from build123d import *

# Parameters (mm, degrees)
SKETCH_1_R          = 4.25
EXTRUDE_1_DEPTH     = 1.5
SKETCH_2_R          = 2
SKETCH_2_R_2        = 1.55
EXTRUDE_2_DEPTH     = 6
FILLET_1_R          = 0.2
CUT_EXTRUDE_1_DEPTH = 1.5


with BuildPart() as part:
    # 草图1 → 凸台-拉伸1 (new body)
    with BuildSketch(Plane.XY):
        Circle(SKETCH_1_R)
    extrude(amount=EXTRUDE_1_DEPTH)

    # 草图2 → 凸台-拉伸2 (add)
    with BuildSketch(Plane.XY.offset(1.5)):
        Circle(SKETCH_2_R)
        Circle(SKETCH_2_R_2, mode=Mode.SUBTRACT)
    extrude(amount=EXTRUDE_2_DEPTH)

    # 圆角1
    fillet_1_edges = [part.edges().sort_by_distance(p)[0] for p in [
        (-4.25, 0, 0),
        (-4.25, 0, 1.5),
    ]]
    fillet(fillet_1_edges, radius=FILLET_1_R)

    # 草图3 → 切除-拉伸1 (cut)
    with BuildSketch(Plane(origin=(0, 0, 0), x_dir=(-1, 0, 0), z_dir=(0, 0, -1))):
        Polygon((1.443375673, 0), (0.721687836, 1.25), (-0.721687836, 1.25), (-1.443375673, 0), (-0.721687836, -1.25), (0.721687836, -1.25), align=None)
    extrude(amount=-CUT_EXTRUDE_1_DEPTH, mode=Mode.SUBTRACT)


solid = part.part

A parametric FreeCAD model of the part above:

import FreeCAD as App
import Part
import Sketcher

V = App.Vector
Q = App.Units.Quantity


def edges_at(feature, points):
    """Names of the edges that pass closest to the given points."""
    edges = feature.Shape.Edges
    near = lambda p: min(range(len(edges)), key=lambda i: edges[i].distToShape(Part.Vertex(*p))[0])
    return sorted({f"Edge{near(p) + 1}" for p in points})


def add_polygon(sketch, points):
    """Adds a closed chain of lines whose ends are joined by coincident constraints."""
    first, n = sketch.GeometryCount, len(points)
    for a, b in zip(points, points[1:] + points[:1]):
        sketch.addGeometry(Part.LineSegment(App.Vector(*a, 0), App.Vector(*b, 0)), False)
    for i in range(n):
        sketch.addConstraint(Sketcher.Constraint("Coincident", first + i, 2, first + (i + 1) % n, 1))

doc = App.newDocument("Part")
params = doc.addObject("Spreadsheet::Sheet", "Params")
for row, (alias, value) in enumerate([
    ("sketch1_diameter", "8.5 mm"),
    ("pad1_length", "1.5 mm"),
    ("sketch2_diameter", "4 mm"),
    ("sketch2_diameter2", "3.1 mm"),
    ("pad2_length", "6 mm"),
    ("fillet_radius", "0.2 mm"),
    ("pocket1_length", "1.5 mm"),
], start=1):
    params.set(f"A{row}", alias)
    params.set(f"B{row}", "=" + value)
    params.setAlias(f"B{row}", alias)

body = doc.addObject("PartDesign::Body", "Body")

# Sketch on XY plane
sketch1 = body.newObject("Sketcher::SketchObject", "Sketch")
sketch1.AttachmentSupport = (doc.getObject("XY_Plane"), [""])
sketch1.MapMode = "FlatFace"
sketch1.addGeometry(Part.Circle(V(0, 0, 0), V(0, 0, 1), 4.2), False)
sketch1.addConstraint([
    Sketcher.Constraint("Coincident", 0, 3, -1, 1),
    Sketcher.Constraint("Diameter", 0, 8.5),
])
sketch1.setExpression("Constraints[1]", "Params.sketch1_diameter")
pad1 = body.newObject("PartDesign::Pad", "Pad")
pad1.Profile = sketch1
pad1.setExpression("Length", "Params.pad1_length")

# Sketch on XY plane
sketch2 = body.newObject("Sketcher::SketchObject", "Sketch001")
sketch2.AttachmentSupport = (doc.getObject("XY_Plane"), [""])
sketch2.MapMode = "FlatFace"
sketch2.AttachmentOffset = App.Placement(V(0, 0, 1.5), App.Rotation())
sketch2.addGeometry([
    Part.Circle(V(0, 0, 0), V(0, 0, 1), 2),
    Part.Circle(V(0, 0, 0), V(0, 0, 1), 1.6),
], False)
sketch2.addConstraint([
    Sketcher.Constraint("Coincident", 0, 3, -1, 1),
    Sketcher.Constraint("Coincident", 1, 3, -1, 1),
    Sketcher.Constraint("Diameter", 0, 4.0),
    Sketcher.Constraint("Diameter", 1, 3.1),
])
sketch2.setExpression("Constraints[2]", "Params.sketch2_diameter")
sketch2.setExpression("Constraints[3]", "Params.sketch2_diameter2")
pad2 = body.newObject("PartDesign::Pad", "Pad001")
pad2.Profile = sketch2
pad2.setExpression("Length", "Params.pad2_length")
doc.recompute()

fillet = body.newObject("PartDesign::Fillet", "Fillet")
fillet.Base = (pad2, edges_at(pad2, [(-4.25, 0, 0), (-4.25, 0, 1.5)]))
fillet.setExpression("Radius", "Params.fillet_radius")

# Sketch on XY plane
sketch3 = body.newObject("Sketcher::SketchObject", "Sketch002")
sketch3.AttachmentSupport = (doc.getObject("XY_Plane"), [""])
sketch3.MapMode = "FlatFace"
add_polygon(sketch3, [(-1.4, 0), (-0.7, 1.2), (0.7, 1.2), (1.4, 0), (0.7, -1.2), (-0.7, -1.2)])  # lines 0-5
sketch3.addConstraint([
    Sketcher.Constraint("Horizontal", 1),
    Sketcher.Constraint("Horizontal", 4),
    Sketcher.Constraint("Symmetric", 0, 2, 3, 2, -1, 1),
    Sketcher.Constraint("Symmetric", 2, 2, 5, 2, -1, 1),
    Sketcher.Constraint("PointOnObject", 2, 2, -1),
    Sketcher.Constraint("Parallel", 2, 5),
    Sketcher.Constraint("Vertical", 1, 2, 3, 2),
    Sketcher.Constraint("Angle", 0, Q("60 deg")),
    Sketcher.Constraint("DistanceY", 3, 2, 1, 2, 2.5),
    Sketcher.Constraint("DistanceX", 1, 1, 1, 2, 1.443376),
])
pocket1 = body.newObject("PartDesign::Pocket", "Pocket")
pocket1.Profile = sketch3
pocket1.setExpression("Length", "Params.pocket1_length")
pocket1.Reversed = True

doc.recompute()
